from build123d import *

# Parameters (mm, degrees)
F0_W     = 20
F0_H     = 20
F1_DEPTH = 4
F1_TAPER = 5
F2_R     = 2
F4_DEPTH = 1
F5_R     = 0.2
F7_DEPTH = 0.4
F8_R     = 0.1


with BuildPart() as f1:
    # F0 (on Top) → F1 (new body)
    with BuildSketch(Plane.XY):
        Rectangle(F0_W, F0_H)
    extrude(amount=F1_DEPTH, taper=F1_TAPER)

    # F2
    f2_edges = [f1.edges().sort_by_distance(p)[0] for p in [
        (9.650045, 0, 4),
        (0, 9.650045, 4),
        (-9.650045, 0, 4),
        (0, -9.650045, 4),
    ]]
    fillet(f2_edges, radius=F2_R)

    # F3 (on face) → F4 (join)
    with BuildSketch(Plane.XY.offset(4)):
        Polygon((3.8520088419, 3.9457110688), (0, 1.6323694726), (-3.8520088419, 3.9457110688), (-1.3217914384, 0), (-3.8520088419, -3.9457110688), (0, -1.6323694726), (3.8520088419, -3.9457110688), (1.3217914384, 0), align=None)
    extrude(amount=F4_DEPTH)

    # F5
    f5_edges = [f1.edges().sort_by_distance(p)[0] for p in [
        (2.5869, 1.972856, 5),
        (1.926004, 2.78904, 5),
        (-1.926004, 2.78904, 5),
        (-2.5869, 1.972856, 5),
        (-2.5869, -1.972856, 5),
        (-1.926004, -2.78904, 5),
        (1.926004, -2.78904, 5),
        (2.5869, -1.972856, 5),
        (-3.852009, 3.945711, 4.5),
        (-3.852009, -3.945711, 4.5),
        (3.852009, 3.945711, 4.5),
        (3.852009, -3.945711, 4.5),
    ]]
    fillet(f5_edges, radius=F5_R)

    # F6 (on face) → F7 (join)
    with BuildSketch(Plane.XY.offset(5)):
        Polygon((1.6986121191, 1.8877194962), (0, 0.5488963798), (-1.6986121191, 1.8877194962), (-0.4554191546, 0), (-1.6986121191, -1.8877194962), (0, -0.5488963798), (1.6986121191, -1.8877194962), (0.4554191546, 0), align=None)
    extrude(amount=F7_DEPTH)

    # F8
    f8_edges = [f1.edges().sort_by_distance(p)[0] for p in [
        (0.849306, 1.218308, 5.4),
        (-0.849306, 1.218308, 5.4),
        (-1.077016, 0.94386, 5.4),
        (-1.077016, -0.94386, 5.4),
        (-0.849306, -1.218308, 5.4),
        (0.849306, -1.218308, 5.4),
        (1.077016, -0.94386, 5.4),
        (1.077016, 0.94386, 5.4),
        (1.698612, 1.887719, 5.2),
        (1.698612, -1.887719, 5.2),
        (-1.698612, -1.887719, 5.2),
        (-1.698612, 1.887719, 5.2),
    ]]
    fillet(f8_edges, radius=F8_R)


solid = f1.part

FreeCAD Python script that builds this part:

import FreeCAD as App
import Part
import Sketcher
from FreeCAD import Vector


def edges_at(feature, points):
    """Names of the edges that pass closest to the given points."""
    edges = feature.Shape.Edges
    near = lambda p: min(range(len(edges)), key=lambda i: edges[i].distToShape(Part.Vertex(*p))[0])
    return sorted({f"Edge{near(p) + 1}" for p in points})


def add_polygon(sketch, points):
    """Adds a closed chain of lines whose ends are joined by coincident constraints."""
    first, n = sketch.GeometryCount, len(points)
    for a, b in zip(points, points[1:] + points[:1]):
        sketch.addGeometry(Part.LineSegment(App.Vector(*a, 0), App.Vector(*b, 0)), False)
    for i in range(n):
        sketch.addConstraint(Sketcher.Constraint("Coincident", first + i, 2, first + (i + 1) % n, 1))

doc = App.newDocument("Part")
body = doc.addObject("PartDesign::Body", "Body")

# Sketch on XY plane
sketch1 = body.newObject("Sketcher::SketchObject", "Sketch")
sketch1.AttachmentSupport = (doc.getObject("XY_Plane"), [""])
sketch1.MapMode = "FlatFace"
add_polygon(sketch1, [(-10, 10), (-10, -10), (10, -10), (10, 10)])  # lines 0-3
sketch1.addConstraint(Sketcher.Constraint("Vertical", 0))
sketch1.addConstraint(Sketcher.Constraint("Horizontal", 1))
sketch1.addConstraint(Sketcher.Constraint("Vertical", 2))
sketch1.addConstraint(Sketcher.Constraint("Horizontal", 3))
sketch1.addConstraint(Sketcher.Constraint("Symmetric", 0, 2, 2, 2, -1, 1))
sketch1.addConstraint(Sketcher.Constraint("Equal", 3, 0))
sketch1.addConstraint(Sketcher.Constraint("DistanceX", 1, 1, 1, 2, 20.0))
pad1 = body.newObject("PartDesign::Pad", "Pad")
pad1.Profile = sketch1
pad1.Length = 4
pad1.TaperAngle = -5
doc.recompute()

fillet = body.newObject("PartDesign::Fillet", "Fillet")
fillet.Base = (pad1, edges_at(pad1, [
    (9.65, 0, 4),
    (0, 9.65, 4),
    (-9.65, 0, 4),
    (0, -9.65, 4),
]))
fillet.Radius = 2

# Sketch on XY plane
sketch2 = body.newObject("Sketcher::SketchObject", "Sketch001")
sketch2.AttachmentSupport = (doc.getObject("XY_Plane"), [""])
sketch2.MapMode = "FlatFace"
sketch2.AttachmentOffset = App.Placement(Vector(0, 0, 4), App.Rotation())
add_polygon(sketch2, [(3.9, 3.9), (0, 1.6), (-3.9, 3.9), (-1.3, 0), (-3.9, -3.9), (0, -1.6), (3.9, -3.9), (1.3, 0)])  # lines 0-7
sketch2.addConstraint(Sketcher.Constraint("Symmetric", 0, 2, 4, 2, -1, 1))
sketch2.addConstraint(Sketcher.Constraint("Symmetric", 1, 2, 5, 2, -1, 1))
sketch2.addConstraint(Sketcher.Constraint("Symmetric", 2, 2, 6, 2, -1, 1))
sketch2.addConstraint(Sketcher.Constraint("Symmetric", 3, 2, 7, 2, -1, 1))
sketch2.addConstraint(Sketcher.Constraint("Symmetric", 3, 2, 5, 2, -2))
sketch2.addConstraint(Sketcher.Constraint("PointOnObject", 0, 2, -2))
sketch2.addConstraint(Sketcher.Constraint("PointOnObject", 2, 2, -1))
sketch2.addConstraint(Sketcher.Constraint("DistanceX", 2, 2, 5, 2, 5.1738))
sketch2.addConstraint(Sketcher.Constraint("DistanceY", -1, 1, 0, 2, 1.632369))
sketch2.addConstraint(Sketcher.Constraint("DistanceX", 1, 2, -1, 1, 3.852009))
sketch2.addConstraint(Sketcher.Constraint("DistanceY", -1, 1, 1, 2, 3.945711))
pad2 = body.newObject("PartDesign::Pad", "Pad001")
pad2.Profile = sketch2
pad2.Length = 1
doc.recompute()

fillet2 = body.newObject("PartDesign::Fillet", "Fillet001")
fillet2.Base = (pad2, edges_at(pad2, [
    (2.587, 1.973, 5),
    (1.926, 2.789, 5),
    (-1.926, 2.789, 5),
    (-2.587, 1.973, 5),
    (-2.587, -1.973, 5),
    (-1.926, -2.789, 5),
    (1.926, -2.789, 5),
    (2.587, -1.973, 5),
    (-3.852, 3.946, 4.5),
    (-3.852, -3.946, 4.5),
    (3.852, 3.946, 4.5),
    (3.852, -3.946, 4.5),
]))
fillet2.Radius = 0.2

# Sketch on XY plane
sketch3 = body.newObject("Sketcher::SketchObject", "Sketch002")
sketch3.AttachmentSupport = (doc.getObject("XY_Plane"), [""])
sketch3.MapMode = "FlatFace"
sketch3.AttachmentOffset = App.Placement(Vector(0, 0, 5), App.Rotation())
add_polygon(sketch3, [(1.7, 1.9), (0, 0.5), (-1.7, 1.9), (-0.5, 0), (-1.7, -1.9), (0, -0.5), (1.7, -1.9), (0.5, 0)])  # lines 0-7
sketch3.addConstraint(Sketcher.Constraint("Symmetric", 0, 2, 4, 2, -1, 1))
sketch3.addConstraint(Sketcher.Constraint("Symmetric", 1, 2, 5, 2, -1, 1))
sketch3.addConstraint(Sketcher.Constraint("Symmetric", 2, 2, 6, 2, -1, 1))
sketch3.addConstraint(Sketcher.Constraint("Symmetric", 3, 2, 7, 2, -1, 1))
sketch3.addConstraint(Sketcher.Constraint("Symmetric", 3, 2, 5, 2, -2))
sketch3.addConstraint(Sketcher.Constraint("PointOnObject", 0, 2, -2))
sketch3.addConstraint(Sketcher.Constraint("PointOnObject", 2, 2, -1))
sketch3.addConstraint(Sketcher.Constraint("DistanceY", -1, 1, 1, 2, 1.887719))
sketch3.addConstraint(Sketcher.Constraint("DistanceX", 2, 2, -1, 1, 0.455419))
sketch3.addConstraint(Sketcher.Constraint("DistanceX", 2, 2, 5, 2, 2.154031))
sketch3.addConstraint(Sketcher.Constraint("Distance", 0, 2.162806))
pad3 = body.newObject("PartDesign::Pad", "Pad002")
pad3.Profile = sketch3
pad3.Length = 0.4
doc.recompute()

fillet3 = body.newObject("PartDesign::Fillet", "Fillet002")
fillet3.Base = (pad3, edges_at(pad3, [
    (0.849, 1.218, 5.4),
    (-0.849, 1.218, 5.4),
    (-1.077, 0.944, 5.4),
    (-1.077, -0.944, 5.4),
    (-0.849, -1.218, 5.4),
    (0.849, -1.218, 5.4),
    (1.077, -0.944, 5.4),
    (1.077, 0.944, 5.4),
    (1.699, 1.888, 5.2),
    (1.699, -1.888, 5.2),
    (-1.699, -1.888, 5.2),
    (-1.699, 1.888, 5.2),
]))
fillet3.Radius = 0.1

doc.recompute()
